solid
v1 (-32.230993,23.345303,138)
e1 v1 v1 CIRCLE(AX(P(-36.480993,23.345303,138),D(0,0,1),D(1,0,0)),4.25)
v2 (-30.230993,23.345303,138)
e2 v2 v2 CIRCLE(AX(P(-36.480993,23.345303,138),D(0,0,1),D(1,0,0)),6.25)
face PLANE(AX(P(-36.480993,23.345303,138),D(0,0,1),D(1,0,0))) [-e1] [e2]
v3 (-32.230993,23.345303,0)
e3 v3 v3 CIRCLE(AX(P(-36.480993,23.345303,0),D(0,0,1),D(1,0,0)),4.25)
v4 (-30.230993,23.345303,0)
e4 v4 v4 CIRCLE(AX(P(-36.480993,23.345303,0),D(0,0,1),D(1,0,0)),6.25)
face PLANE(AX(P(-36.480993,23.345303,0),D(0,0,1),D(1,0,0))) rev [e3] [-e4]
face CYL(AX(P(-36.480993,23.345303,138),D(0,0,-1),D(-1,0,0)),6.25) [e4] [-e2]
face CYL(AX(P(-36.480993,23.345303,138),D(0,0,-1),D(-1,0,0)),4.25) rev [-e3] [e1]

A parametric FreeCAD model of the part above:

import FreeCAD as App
import Part
import Sketcher

doc = App.newDocument("Part")
body = doc.addObject("PartDesign::Body", "Body")

sketch1 = doc.addObject("Sketcher::SketchObject", "Sketch")
body.addObject(sketch1)
sketch1.AttachmentSupport = (doc.XY_Plane, [""])
sketch1.MapMode = "FlatFace"
sketch1.addGeometry([
    Part.Circle(App.Vector(-36.5, 23.3, 0), App.Vector(0, 0, 1), 6.2),
    Part.Circle(App.Vector(-36.5, 23.3, 0), App.Vector(0, 0, 1), 4.2),
], False)
sketch1.addConstraint([
    Sketcher.Constraint("Coincident", 1, 3, 0, 3),
    Sketcher.Constraint("Diameter", 0, 12.5),
    Sketcher.Constraint("Diameter", 1, 8.5),
    Sketcher.Constraint("DistanceX", 0, 3, -1, 1, 36.480993),
    Sketcher.Constraint("DistanceY", -1, 1, 0, 3, 23.345303),
])
pad1 = doc.addObject("PartDesign::Pad", "Pad")
body.addObject(pad1)
pad1.Profile = sketch1
pad1.Length = 138

doc.recompute()
